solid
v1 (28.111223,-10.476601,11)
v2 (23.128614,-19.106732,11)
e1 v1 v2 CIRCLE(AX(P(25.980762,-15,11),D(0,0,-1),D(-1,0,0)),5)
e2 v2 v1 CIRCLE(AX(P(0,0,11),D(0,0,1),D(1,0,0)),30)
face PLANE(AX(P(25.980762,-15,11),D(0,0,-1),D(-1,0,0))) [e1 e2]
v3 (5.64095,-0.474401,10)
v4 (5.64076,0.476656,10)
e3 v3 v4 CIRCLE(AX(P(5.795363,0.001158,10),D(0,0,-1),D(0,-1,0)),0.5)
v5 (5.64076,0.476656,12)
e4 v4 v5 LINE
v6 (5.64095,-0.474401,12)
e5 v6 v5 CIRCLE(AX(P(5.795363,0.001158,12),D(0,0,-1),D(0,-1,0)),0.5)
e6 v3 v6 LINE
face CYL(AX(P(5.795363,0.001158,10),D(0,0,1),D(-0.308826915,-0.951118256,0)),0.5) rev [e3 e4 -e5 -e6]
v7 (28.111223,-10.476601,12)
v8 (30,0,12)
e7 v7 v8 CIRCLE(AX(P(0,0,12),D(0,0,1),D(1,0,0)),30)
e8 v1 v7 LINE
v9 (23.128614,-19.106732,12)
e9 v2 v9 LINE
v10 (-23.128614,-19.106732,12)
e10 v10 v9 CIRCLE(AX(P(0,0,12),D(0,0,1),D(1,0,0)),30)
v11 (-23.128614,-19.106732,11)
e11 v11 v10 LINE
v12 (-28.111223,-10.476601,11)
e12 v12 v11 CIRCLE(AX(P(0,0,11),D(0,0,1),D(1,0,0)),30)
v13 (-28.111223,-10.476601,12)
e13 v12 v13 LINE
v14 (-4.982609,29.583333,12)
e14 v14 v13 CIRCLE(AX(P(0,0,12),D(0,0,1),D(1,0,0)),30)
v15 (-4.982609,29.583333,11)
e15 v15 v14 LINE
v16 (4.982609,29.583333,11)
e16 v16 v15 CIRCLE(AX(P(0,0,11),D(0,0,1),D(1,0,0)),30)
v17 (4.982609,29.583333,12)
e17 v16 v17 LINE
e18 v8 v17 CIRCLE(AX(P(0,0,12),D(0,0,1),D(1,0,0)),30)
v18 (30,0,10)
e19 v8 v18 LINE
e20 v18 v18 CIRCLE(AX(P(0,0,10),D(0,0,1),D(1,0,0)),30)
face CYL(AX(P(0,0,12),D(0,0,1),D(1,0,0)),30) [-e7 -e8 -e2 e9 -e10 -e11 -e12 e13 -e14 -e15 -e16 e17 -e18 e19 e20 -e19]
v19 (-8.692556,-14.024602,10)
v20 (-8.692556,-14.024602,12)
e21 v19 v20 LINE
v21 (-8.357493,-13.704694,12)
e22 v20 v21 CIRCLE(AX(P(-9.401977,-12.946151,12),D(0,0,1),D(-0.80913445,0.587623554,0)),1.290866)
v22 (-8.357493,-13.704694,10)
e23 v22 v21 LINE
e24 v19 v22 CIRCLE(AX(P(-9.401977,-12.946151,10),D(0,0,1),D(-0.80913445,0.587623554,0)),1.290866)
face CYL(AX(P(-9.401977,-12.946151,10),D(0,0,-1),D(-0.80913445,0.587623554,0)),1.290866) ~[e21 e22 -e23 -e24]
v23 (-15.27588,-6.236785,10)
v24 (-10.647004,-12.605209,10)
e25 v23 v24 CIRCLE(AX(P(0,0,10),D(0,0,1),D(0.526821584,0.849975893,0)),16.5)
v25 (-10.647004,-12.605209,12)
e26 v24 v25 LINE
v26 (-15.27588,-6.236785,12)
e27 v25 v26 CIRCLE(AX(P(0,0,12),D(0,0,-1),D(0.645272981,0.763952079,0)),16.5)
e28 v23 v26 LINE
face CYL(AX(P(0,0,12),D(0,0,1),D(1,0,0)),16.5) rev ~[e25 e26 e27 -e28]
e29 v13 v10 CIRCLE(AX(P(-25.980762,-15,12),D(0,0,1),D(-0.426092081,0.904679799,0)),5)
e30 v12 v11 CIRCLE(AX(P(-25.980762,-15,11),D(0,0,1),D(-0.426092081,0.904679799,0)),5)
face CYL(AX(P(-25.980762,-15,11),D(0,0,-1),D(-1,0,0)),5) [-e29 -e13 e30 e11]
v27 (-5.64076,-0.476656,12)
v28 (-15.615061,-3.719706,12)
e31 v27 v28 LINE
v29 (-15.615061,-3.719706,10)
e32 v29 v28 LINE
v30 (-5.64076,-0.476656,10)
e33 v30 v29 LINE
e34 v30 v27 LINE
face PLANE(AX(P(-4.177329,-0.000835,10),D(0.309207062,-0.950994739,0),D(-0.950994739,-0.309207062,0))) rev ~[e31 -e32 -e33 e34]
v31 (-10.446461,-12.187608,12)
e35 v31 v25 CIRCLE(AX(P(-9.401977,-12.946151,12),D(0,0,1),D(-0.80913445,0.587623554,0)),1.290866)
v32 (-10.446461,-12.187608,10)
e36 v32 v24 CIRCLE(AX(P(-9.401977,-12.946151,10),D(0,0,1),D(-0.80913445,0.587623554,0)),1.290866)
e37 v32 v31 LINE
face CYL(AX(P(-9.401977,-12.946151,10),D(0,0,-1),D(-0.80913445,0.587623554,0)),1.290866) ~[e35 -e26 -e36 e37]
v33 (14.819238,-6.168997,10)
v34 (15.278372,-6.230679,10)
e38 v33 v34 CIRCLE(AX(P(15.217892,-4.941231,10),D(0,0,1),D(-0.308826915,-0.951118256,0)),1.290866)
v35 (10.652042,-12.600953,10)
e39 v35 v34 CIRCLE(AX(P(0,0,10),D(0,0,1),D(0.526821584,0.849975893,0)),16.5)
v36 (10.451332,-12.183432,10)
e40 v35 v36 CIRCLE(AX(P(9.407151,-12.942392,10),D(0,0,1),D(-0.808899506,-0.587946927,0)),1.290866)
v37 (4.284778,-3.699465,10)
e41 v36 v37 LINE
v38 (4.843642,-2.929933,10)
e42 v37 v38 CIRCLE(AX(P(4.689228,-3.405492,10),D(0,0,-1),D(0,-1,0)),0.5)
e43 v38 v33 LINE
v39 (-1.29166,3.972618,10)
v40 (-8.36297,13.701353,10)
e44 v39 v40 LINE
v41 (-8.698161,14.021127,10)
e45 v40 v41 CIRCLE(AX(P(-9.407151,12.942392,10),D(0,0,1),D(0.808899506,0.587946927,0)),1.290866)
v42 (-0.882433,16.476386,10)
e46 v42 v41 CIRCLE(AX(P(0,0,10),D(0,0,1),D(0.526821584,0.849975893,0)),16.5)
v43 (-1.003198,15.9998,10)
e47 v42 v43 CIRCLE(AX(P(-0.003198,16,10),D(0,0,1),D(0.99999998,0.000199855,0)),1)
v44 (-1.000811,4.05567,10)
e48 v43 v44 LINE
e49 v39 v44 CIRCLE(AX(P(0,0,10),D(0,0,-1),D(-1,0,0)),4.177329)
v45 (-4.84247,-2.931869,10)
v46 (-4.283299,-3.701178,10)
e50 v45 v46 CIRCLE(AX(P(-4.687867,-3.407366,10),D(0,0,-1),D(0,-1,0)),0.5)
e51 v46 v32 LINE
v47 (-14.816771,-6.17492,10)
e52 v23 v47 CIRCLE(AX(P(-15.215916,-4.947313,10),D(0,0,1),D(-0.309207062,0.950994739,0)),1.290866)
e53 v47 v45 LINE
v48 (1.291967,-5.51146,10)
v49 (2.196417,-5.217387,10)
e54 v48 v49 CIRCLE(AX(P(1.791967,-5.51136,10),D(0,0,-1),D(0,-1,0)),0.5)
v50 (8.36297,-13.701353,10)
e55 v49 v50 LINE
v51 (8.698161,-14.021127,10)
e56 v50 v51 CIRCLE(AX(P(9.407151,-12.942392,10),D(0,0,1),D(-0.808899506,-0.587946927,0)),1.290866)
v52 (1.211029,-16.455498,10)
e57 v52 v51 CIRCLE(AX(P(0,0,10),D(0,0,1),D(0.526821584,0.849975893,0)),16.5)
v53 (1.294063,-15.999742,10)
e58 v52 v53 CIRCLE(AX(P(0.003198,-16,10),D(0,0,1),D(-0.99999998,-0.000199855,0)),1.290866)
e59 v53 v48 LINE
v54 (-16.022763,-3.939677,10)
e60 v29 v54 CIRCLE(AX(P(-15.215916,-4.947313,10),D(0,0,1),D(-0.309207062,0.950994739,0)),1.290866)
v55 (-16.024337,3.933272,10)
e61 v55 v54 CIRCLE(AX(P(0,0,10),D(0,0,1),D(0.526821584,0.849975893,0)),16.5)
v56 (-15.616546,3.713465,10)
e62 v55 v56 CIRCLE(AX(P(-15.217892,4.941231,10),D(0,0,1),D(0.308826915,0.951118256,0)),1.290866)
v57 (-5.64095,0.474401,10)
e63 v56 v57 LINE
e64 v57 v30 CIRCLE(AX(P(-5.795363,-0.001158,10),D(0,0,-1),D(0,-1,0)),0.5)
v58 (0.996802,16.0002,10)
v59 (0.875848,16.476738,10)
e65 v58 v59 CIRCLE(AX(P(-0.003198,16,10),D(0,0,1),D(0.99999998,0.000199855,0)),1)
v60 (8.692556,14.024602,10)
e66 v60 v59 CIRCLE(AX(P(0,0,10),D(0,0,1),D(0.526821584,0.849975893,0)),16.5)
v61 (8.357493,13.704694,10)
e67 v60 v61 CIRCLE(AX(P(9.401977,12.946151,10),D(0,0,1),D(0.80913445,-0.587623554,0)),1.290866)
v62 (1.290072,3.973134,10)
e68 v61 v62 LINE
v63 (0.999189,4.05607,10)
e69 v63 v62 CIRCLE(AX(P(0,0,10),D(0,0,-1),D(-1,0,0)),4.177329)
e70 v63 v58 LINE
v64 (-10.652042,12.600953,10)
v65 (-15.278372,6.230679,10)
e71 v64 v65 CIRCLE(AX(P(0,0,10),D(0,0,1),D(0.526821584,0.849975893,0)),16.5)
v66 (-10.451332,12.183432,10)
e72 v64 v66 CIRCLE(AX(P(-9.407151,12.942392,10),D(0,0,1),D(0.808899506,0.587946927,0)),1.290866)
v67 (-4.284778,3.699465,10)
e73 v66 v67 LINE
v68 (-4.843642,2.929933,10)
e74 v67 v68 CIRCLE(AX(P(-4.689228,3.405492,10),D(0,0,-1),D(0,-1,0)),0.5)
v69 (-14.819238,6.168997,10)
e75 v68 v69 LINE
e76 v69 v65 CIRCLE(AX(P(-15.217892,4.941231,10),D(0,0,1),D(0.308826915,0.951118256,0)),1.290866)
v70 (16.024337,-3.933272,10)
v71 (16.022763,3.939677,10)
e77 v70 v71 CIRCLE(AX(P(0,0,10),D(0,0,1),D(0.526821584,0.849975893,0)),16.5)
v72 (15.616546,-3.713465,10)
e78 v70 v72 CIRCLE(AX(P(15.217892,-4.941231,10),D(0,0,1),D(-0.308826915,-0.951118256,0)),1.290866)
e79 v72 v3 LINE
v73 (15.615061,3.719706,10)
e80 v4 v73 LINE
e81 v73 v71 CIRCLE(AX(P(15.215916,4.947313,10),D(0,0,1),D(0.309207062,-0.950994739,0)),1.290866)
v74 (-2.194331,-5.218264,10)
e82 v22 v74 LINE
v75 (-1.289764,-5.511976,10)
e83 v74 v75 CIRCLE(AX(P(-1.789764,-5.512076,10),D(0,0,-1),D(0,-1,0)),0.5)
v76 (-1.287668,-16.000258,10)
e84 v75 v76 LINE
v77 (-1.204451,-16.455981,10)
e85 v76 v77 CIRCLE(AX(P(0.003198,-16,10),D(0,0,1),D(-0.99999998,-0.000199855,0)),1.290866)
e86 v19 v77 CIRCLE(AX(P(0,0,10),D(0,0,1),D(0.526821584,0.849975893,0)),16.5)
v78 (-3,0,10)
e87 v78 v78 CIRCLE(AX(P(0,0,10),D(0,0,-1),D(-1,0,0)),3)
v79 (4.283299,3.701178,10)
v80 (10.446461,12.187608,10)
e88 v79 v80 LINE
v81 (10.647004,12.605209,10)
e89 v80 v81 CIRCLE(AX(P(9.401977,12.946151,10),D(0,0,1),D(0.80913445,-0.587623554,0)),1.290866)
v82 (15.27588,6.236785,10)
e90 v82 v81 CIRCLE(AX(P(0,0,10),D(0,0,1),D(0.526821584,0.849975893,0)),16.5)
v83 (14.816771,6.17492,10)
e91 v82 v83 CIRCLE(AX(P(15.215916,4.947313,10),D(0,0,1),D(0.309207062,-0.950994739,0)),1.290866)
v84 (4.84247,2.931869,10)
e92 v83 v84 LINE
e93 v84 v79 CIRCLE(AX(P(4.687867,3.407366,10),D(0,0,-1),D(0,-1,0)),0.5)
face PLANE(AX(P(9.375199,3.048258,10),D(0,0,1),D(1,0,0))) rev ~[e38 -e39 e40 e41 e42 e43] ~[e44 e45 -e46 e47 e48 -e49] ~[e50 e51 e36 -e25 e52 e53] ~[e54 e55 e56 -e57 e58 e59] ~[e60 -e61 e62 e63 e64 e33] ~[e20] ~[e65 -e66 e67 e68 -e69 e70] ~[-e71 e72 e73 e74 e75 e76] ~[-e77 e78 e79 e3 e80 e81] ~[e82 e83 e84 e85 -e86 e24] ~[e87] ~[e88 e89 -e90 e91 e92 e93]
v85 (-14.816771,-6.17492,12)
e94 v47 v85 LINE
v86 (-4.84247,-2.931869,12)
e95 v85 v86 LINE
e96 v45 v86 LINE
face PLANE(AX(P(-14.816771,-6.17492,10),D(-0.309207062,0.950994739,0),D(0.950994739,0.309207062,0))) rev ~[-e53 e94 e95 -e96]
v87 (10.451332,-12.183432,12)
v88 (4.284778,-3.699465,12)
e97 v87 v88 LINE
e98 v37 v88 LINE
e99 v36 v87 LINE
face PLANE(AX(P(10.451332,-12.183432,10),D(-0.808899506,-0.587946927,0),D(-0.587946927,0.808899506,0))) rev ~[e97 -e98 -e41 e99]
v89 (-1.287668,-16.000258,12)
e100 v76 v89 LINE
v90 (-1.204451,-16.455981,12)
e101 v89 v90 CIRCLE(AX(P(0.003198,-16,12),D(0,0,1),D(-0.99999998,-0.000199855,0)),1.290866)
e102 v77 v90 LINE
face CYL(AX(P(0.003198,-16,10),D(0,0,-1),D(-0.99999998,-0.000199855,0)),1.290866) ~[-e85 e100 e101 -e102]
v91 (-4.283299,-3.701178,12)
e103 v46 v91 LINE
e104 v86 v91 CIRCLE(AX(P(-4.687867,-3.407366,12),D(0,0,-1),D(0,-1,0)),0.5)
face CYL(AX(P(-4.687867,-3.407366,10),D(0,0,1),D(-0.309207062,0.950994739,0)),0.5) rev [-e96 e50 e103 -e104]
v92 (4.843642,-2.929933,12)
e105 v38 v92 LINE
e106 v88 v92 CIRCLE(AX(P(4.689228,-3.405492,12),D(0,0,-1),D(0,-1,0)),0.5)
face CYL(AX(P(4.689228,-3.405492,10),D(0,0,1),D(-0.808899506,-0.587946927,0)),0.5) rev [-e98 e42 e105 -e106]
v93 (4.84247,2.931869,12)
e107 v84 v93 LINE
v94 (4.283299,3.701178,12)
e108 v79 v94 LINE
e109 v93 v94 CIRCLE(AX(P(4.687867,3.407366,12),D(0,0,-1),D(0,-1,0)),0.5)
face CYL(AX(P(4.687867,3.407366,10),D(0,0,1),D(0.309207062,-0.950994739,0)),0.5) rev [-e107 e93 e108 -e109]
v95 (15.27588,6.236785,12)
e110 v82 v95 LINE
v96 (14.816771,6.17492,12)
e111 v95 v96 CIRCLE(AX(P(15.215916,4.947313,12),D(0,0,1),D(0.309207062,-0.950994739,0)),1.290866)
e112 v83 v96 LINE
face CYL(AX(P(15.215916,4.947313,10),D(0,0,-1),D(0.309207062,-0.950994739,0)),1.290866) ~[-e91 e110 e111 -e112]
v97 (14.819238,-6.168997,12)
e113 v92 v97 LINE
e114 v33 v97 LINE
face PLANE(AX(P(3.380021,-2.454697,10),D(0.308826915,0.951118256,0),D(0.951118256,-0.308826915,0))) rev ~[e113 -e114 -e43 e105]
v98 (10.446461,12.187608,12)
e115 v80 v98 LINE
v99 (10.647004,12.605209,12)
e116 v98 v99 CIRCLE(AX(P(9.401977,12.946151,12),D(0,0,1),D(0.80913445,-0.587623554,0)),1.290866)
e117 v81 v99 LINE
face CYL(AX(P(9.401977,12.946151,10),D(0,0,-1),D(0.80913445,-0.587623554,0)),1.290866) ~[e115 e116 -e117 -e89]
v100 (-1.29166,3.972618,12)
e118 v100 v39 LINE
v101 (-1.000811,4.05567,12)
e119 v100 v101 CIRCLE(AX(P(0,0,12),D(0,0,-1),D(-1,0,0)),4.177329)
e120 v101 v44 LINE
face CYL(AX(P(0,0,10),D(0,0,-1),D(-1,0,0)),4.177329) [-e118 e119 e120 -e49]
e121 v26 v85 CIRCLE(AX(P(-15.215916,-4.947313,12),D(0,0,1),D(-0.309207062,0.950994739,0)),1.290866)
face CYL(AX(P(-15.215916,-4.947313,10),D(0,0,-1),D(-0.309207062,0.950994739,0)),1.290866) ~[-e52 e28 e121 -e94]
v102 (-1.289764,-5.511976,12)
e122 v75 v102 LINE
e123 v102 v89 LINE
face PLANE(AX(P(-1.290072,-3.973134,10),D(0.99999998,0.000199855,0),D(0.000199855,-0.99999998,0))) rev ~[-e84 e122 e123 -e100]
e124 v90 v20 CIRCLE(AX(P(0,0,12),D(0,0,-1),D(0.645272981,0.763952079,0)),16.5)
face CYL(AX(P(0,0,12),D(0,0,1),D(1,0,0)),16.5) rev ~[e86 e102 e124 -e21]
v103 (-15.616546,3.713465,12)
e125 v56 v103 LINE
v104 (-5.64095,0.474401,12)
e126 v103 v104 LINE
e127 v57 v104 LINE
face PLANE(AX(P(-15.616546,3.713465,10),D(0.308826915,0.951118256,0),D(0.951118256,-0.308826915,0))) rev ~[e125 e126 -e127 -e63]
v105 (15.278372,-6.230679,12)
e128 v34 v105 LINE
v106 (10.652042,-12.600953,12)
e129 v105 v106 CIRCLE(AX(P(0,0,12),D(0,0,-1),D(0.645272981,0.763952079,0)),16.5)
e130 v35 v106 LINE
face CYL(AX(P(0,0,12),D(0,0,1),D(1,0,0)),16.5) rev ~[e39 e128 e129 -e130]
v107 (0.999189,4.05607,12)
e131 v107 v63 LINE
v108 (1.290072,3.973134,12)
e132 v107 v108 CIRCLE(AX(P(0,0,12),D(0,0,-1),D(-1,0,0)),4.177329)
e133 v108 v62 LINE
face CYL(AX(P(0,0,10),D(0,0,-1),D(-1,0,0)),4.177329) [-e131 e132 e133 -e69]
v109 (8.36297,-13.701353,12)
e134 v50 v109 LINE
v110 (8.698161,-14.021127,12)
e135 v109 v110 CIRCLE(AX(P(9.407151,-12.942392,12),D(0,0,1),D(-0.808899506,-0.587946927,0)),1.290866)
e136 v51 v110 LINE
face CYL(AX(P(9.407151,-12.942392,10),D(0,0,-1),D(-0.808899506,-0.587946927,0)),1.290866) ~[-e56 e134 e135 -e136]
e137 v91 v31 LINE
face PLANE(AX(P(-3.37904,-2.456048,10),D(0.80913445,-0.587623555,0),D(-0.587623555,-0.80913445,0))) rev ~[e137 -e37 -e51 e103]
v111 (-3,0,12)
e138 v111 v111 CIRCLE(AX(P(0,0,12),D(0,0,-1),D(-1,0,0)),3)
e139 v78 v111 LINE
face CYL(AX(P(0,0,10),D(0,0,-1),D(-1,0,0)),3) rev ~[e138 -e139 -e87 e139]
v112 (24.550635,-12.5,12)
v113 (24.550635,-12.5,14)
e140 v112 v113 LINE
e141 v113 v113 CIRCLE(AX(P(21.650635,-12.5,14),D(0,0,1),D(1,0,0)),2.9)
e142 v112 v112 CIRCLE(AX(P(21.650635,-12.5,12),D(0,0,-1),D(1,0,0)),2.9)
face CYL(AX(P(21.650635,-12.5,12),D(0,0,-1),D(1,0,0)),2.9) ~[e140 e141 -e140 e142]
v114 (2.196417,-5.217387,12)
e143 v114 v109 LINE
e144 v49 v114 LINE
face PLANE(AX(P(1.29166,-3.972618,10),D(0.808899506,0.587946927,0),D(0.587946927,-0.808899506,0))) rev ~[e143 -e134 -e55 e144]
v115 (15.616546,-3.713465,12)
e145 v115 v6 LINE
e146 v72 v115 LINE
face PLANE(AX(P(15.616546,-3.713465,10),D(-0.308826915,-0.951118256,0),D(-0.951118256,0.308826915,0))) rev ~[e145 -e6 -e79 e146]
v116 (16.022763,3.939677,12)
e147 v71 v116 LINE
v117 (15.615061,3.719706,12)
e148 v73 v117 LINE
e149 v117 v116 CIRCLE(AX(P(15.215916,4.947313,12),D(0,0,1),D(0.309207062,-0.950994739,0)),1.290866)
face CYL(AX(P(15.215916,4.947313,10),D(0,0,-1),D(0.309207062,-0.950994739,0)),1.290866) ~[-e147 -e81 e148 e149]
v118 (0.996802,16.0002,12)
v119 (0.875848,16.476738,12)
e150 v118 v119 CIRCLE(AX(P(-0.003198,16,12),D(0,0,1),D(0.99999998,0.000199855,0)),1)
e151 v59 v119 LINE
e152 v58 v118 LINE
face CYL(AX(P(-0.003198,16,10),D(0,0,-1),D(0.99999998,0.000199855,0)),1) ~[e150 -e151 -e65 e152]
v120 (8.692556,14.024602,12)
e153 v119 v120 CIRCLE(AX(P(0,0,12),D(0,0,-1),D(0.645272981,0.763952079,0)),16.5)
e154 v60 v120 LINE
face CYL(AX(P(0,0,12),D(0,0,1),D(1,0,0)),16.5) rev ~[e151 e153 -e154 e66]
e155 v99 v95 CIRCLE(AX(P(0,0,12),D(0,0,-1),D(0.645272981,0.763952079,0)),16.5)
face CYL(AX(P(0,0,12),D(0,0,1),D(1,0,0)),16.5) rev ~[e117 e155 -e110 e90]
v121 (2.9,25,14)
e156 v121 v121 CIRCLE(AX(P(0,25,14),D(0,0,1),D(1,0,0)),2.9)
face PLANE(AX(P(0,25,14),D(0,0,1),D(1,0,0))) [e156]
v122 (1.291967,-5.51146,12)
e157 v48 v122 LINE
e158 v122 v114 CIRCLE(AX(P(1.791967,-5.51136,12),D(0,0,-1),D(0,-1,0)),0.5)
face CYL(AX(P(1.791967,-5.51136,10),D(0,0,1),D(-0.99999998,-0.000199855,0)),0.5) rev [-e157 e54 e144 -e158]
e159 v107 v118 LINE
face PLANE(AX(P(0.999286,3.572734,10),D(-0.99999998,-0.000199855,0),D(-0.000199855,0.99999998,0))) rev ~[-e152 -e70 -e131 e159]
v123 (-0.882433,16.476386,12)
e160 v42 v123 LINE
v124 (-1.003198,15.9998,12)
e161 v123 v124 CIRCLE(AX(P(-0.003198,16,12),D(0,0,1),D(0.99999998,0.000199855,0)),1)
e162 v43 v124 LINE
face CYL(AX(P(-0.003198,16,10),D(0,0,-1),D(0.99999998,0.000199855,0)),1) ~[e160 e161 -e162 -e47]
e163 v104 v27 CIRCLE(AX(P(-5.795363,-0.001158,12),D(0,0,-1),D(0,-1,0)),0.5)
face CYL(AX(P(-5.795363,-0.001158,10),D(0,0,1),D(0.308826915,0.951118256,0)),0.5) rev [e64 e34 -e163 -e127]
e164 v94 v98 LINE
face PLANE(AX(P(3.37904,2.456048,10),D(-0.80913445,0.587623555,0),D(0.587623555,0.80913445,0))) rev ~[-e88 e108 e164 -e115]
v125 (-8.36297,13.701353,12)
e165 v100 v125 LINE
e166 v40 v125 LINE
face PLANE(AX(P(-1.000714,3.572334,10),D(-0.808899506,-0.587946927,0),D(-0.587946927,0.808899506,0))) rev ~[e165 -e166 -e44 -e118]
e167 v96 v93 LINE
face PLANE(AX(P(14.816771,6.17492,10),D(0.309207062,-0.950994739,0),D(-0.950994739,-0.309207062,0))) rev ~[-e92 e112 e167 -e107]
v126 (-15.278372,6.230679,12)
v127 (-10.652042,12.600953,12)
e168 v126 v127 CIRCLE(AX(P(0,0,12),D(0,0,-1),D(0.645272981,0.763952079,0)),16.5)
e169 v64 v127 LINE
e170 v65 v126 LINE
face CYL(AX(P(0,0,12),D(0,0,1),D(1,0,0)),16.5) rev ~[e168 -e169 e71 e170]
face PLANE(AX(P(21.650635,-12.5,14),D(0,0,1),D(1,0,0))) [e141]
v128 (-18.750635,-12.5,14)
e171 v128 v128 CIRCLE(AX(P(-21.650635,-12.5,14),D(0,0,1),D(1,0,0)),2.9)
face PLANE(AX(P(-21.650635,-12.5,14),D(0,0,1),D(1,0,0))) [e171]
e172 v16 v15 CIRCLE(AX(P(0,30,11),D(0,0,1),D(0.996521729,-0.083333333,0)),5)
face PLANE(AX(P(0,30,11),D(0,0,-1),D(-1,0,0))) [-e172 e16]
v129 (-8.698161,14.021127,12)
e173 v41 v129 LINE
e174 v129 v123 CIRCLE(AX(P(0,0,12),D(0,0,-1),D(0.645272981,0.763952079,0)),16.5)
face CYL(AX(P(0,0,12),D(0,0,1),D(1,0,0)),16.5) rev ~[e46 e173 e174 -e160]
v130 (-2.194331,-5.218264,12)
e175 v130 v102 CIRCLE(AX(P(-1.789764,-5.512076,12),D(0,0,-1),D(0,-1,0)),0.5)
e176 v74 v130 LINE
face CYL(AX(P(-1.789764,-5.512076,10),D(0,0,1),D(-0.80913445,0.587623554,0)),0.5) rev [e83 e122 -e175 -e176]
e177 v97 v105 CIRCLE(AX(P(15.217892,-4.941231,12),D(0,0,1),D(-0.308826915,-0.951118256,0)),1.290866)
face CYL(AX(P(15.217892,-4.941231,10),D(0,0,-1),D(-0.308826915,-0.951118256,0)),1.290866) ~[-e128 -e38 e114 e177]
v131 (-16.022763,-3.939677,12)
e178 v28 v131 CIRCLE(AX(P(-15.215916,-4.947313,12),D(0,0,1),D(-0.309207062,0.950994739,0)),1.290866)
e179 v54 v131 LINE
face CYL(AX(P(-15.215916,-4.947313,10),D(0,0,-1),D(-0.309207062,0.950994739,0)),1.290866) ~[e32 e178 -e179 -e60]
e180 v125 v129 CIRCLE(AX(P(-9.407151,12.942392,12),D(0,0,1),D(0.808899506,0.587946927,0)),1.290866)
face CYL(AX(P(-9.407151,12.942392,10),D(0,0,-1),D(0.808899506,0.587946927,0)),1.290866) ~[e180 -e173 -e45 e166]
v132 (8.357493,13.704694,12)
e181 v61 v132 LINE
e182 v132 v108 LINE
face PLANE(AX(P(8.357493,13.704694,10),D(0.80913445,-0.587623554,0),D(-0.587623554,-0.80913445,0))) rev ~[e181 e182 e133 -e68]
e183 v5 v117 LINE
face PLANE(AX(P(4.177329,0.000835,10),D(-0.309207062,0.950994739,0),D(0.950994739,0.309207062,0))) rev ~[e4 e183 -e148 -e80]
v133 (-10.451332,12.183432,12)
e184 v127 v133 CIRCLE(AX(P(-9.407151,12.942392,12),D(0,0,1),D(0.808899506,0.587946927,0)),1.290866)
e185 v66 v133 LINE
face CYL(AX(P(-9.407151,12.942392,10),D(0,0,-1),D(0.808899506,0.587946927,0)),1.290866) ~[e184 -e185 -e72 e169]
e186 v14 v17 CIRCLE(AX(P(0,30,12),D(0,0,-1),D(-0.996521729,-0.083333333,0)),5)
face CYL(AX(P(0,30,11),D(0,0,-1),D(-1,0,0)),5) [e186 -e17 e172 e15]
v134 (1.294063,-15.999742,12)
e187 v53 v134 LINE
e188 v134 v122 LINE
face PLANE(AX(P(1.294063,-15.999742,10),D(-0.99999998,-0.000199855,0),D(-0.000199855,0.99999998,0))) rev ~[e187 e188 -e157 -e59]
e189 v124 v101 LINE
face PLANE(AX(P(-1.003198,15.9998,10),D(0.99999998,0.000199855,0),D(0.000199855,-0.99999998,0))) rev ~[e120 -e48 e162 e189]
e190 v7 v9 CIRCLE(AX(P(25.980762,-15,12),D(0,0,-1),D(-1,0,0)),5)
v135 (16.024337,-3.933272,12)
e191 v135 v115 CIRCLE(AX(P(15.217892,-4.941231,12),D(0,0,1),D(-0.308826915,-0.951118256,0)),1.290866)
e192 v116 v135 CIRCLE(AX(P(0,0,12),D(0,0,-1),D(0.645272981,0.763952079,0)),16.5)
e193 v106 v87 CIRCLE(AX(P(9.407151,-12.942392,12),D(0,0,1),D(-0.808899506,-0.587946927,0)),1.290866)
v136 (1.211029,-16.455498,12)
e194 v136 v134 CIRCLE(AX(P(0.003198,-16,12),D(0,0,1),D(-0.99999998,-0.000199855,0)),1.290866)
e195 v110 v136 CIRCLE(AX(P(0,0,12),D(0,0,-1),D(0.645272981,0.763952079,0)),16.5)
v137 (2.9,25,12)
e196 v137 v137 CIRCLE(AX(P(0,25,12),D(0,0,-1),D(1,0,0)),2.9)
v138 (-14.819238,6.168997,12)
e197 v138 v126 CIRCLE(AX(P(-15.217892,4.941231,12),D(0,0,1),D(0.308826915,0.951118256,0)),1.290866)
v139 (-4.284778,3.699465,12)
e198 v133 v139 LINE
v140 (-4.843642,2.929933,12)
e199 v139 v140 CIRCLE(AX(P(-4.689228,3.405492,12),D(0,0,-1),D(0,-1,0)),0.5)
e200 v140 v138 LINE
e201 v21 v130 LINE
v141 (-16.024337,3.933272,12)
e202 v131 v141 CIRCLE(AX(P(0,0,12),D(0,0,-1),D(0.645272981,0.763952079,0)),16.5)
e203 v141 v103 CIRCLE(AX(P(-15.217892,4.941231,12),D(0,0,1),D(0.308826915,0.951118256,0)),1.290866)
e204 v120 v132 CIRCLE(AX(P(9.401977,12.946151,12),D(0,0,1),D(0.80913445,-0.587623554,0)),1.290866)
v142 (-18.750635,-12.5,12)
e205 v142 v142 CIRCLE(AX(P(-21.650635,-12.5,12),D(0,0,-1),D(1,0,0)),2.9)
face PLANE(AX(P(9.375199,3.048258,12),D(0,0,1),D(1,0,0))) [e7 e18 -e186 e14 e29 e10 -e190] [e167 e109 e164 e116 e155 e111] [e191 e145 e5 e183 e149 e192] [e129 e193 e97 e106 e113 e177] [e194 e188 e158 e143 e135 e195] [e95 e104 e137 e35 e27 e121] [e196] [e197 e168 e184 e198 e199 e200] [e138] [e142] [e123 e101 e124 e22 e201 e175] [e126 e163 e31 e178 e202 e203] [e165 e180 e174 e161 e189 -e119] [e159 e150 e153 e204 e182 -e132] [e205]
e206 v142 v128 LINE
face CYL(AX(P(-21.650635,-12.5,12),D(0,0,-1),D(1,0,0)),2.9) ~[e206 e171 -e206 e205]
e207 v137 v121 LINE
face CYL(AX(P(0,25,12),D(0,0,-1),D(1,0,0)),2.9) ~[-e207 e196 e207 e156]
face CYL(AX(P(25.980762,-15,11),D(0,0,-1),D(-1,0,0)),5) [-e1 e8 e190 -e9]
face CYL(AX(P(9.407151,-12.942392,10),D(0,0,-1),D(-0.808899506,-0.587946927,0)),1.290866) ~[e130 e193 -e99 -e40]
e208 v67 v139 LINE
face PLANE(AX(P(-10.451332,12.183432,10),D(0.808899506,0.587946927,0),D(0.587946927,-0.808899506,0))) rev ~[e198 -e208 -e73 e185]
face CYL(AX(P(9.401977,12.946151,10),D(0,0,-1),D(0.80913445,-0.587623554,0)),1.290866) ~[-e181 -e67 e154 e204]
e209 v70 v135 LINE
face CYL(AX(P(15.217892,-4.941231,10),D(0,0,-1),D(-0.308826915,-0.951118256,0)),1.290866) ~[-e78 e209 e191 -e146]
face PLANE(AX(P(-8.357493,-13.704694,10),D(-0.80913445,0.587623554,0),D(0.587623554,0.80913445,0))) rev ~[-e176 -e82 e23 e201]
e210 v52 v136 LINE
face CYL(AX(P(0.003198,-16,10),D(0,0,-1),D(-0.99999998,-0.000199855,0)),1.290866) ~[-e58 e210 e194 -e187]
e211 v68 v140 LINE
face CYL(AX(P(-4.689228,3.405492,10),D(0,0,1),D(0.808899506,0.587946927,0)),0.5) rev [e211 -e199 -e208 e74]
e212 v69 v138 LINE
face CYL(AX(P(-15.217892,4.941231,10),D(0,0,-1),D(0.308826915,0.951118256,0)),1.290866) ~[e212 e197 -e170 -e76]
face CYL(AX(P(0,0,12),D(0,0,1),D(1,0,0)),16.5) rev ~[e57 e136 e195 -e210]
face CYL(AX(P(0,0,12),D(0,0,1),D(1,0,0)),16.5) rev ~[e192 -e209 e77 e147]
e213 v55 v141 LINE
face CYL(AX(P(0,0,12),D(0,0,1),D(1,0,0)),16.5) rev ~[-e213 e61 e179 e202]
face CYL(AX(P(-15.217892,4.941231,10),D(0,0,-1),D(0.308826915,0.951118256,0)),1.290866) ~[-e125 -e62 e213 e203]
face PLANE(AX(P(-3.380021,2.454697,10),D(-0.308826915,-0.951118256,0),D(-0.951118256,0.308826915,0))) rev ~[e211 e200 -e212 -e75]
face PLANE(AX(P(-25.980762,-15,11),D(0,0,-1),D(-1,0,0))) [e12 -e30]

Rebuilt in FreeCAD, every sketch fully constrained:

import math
import FreeCAD as App
import Part
import Sketcher

V = App.Vector


def edges_at(feature, points):
    """Names of the edges that pass closest to the given points."""
    edges = feature.Shape.Edges
    near = lambda p: min(range(len(edges)), key=lambda i: edges[i].distToShape(Part.Vertex(*p))[0])
    return sorted({f"Edge{near(p) + 1}" for p in points})

doc = App.newDocument("Part")
body = doc.addObject("PartDesign::Body", "Body")

sketch1 = body.newObject("Sketcher::SketchObject", "Sketch")
sketch1.AttachmentSupport = (doc.getObject("XY_Plane"), [""])
sketch1.MapMode = "FlatFace"
sketch1.AttachmentOffset = App.Placement(V(0, 0, 10), App.Rotation())
sketch1.addGeometry([
    Part.LineSegment(V(8.357493, 13.704694, 0), V(0.999286, 3.572734, 0)),
    Part.LineSegment(V(0.999286, 3.572734, 0), V(0.999664, 1.682416, 0)),
    Part.LineSegment(V(0.999664, 1.682416, 0), V(3.37904, 2.456048, 0)),
    Part.LineSegment(V(3.37904, 2.456048, 0), V(10.446461, 12.187608, 0)),
    Part.ArcOfCircle(Part.Circle(V(9.401977, 12.946151, 0), V(0, 0, 1), 1.290866), math.radians(-35.988549), math.radians(144.011451)),
], False)
sketch1.addConstraint([
    Sketcher.Constraint("Coincident", 0, 2, 1, 1),
    Sketcher.Constraint("Coincident", 1, 2, 2, 1),
    Sketcher.Constraint("Coincident", 2, 2, 3, 1),
    Sketcher.Constraint("Tangent", 3, 2, 4, 1),
    Sketcher.Constraint("Tangent", 4, 2, 0, 1),
    Sketcher.Constraint("Parallel", 0, 3),
    Sketcher.Constraint("Radius", 4, 1.290866),
    Sketcher.Constraint("DistanceY", -1, 1, 4, 3, 12.946151),
    Sketcher.Constraint("DistanceX", -1, 1, 2, 2, 3.37904),
    Sketcher.Constraint("DistanceX", -1, 1, 3, 2, 10.446461),
    Sketcher.Constraint("DistanceY", -1, 1, 3, 2, 12.187608),
    Sketcher.Constraint("DistanceX", 0, 2, 4, 3, 8.402691),
    Sketcher.Constraint("DistanceY", 1, 2, 2, 2, 0.773632),
    Sketcher.Constraint("DistanceX", 1, 2, 4, 2, 7.357829),
])
pad1 = body.newObject("PartDesign::Pad", "Pad")
pad1.Profile = sketch1
pad1.Length = 2
body2 = doc.addObject("PartDesign::Body", "Body001")

sketch2 = body2.newObject("Sketcher::SketchObject", "Sketch001")
sketch2.AttachmentSupport = (doc.getObject("XY_Plane001"), [""])
sketch2.MapMode = "FlatFace"
sketch2.AttachmentOffset = App.Placement(V(0, 0, 10), App.Rotation())
sketch2.addGeometry([
    Part.LineSegment(V(0.999286, 3.572734, 0), V(0.996802, 16.0002, 0)),
    Part.ArcOfCircle(Part.Circle(V(-0.003198, 16, 0), V(0, 0, 1), 1), math.radians(0.011451), math.radians(180.011451)),
    Part.LineSegment(V(-1.003198, 15.9998, 0), V(-1.000714, 3.572334, 0)),
    Part.LineSegment(V(-1.000714, 3.572334, 0), V(-0.000439, 2.196152, 0)),
    Part.LineSegment(V(-0.000439, 2.196152, 0), V(0.999286, 3.572734, 0)),
], False)
sketch2.addConstraint([
    Sketcher.Constraint("Tangent", 0, 2, 1, 1),
    Sketcher.Constraint("Tangent", 1, 2, 2, 1),
    Sketcher.Constraint("Coincident", 2, 2, 3, 1),
    Sketcher.Constraint("Coincident", 3, 2, 4, 1),
    Sketcher.Constraint("Coincident", 4, 2, 0, 1),
    Sketcher.Constraint("Parallel", 0, 2),
    Sketcher.Constraint("Equal", 0, 2),
    Sketcher.Constraint("Equal", 3, 4),
    Sketcher.Constraint("Radius", 1, 1.0),
    Sketcher.Constraint("DistanceY", -1, 1, 1, 3, 16.0),
    Sketcher.Constraint("Distance", 3, 1.701302),
    Sketcher.Constraint("DistanceY", -1, 1, 0, 2, 16.0002),
    Sketcher.Constraint("DistanceX", 3, 2, -1, 1, 0.000439),
    Sketcher.Constraint("DistanceY", -1, 1, 3, 2, 2.196152),
])
pad2 = body2.newObject("PartDesign::Pad", "Pad001")
pad2.Profile = sketch2
pad2.Length = 2
body3 = doc.addObject("PartDesign::Body", "Body002")

sketch3 = body3.newObject("Sketcher::SketchObject", "Sketch002")
sketch3.AttachmentSupport = (doc.getObject("XY_Plane002"), [""])
sketch3.MapMode = "FlatFace"
sketch3.AttachmentOffset = App.Placement(V(0, 0, 10), App.Rotation())
sketch3.addGeometry([
    Part.LineSegment(V(-1.000336, 1.682016, 0), V(-1.000714, 3.572334, 0)),
    Part.LineSegment(V(-1.000714, 3.572334, 0), V(-8.36297, 13.701353, 0)),
    Part.ArcOfCircle(Part.Circle(V(-9.407151, 12.942392, 0), V(0, 0, 1), 1.290866), math.radians(36.011451), math.radians(216.011451)),
    Part.LineSegment(V(-10.451332, 12.183432, 0), V(-3.380021, 2.454697, 0)),
    Part.LineSegment(V(-3.380021, 2.454697, 0), V(-1.000336, 1.682016, 0)),
], False)
sketch3.addConstraint([
    Sketcher.Constraint("Coincident", 0, 2, 1, 1),
    Sketcher.Constraint("Tangent", 1, 2, 2, 1),
    Sketcher.Constraint("Tangent", 2, 2, 3, 1),
    Sketcher.Constraint("Coincident", 3, 2, 4, 1),
    Sketcher.Constraint("Coincident", 4, 2, 0, 1),
    Sketcher.Constraint("Parallel", 1, 3),
    Sketcher.Constraint("Radius", 2, 1.290866),
    Sketcher.Constraint("DistanceX", 2, 3, -1, 1, 9.407151),
    Sketcher.Constraint("DistanceX", 1, 2, -1, 1, 8.36297),
    Sketcher.Constraint("DistanceY", -1, 1, 2, 2, 12.183432),
    Sketcher.Constraint("DistanceX", 3, 2, -1, 1, 3.380021),
    Sketcher.Constraint("DistanceY", 0, 2, 2, 3, 9.370058),
    Sketcher.Constraint("DistanceY", 4, 2, 3, 2, 0.772681),
    Sketcher.Constraint("Distance", 4, 2.501986),
])
pad3 = body3.newObject("PartDesign::Pad", "Pad002")
pad3.Profile = sketch3
pad3.Length = 2
body4 = doc.addObject("PartDesign::Body", "Body003")

sketch4 = body4.newObject("Sketcher::SketchObject", "Sketch003")
sketch4.AttachmentSupport = (doc.getObject("XY_Plane003"), [""])
sketch4.MapMode = "FlatFace"
sketch4.AttachmentOffset = App.Placement(V(0, 0, 10), App.Rotation())
sketch4.addGeometry([
    Part.LineSegment(V(-2.0888, 0.678231, 0), V(-3.380021, 2.454697, 0)),
    Part.LineSegment(V(-3.380021, 2.454697, 0), V(-14.819238, 6.168997, 0)),
    Part.ArcOfCircle(Part.Circle(V(-15.217892, 4.941231, 0), V(0, 0, 1), 1.290866), math.radians(72.011451), math.radians(252.011451)),
    Part.LineSegment(V(-15.616546, 3.713465, 0), V(-4.177329, -0.000835, 0)),
    Part.LineSegment(V(-4.177329, -0.000835, 0), V(-2.0888, 0.678231, 0)),
], False)
sketch4.addConstraint([
    Sketcher.Constraint("Coincident", 0, 2, 1, 1),
    Sketcher.Constraint("Tangent", 1, 2, 2, 1),
    Sketcher.Constraint("Tangent", 2, 2, 3, 1),
    Sketcher.Constraint("Coincident", 3, 2, 4, 1),
    Sketcher.Constraint("Coincident", 4, 2, 0, 1),
    Sketcher.Constraint("Parallel", 1, 3),
    Sketcher.Constraint("Equal", 1, 3),
    Sketcher.Constraint("Equal", 0, 4),
    Sketcher.Constraint("Radius", 2, 1.290866),
    Sketcher.Constraint("DistanceY", 4, 2, 2, 3, 4.263),
    Sketcher.Constraint("DistanceX", 4, 2, -1, 1, 2.0888),
    Sketcher.Constraint("DistanceY", 0, 2, 1, 2, 3.7143),
    Sketcher.Constraint("DistanceY", -1, 1, 2, 3, 4.941231),
    Sketcher.Constraint("DistanceX", 0, 2, -1, 1, 3.380021),
])
pad4 = body4.newObject("PartDesign::Pad", "Pad003")
pad4.Profile = sketch4
pad4.Length = 2
body5 = doc.addObject("PartDesign::Body", "Body004")

sketch5 = body5.newObject("Sketcher::SketchObject", "Sketch004")
sketch5.AttachmentSupport = (doc.getObject("XY_Plane004"), [""])
sketch5.MapMode = "FlatFace"
sketch5.AttachmentOffset = App.Placement(V(0, 0, 10), App.Rotation())
sketch5.addGeometry([
    Part.LineSegment(V(-2.088529, -0.679066, 0), V(-4.177329, -0.000835, 0)),
    Part.LineSegment(V(-4.177329, -0.000835, 0), V(-15.615061, -3.719706, 0)),
    Part.ArcOfCircle(Part.Circle(V(-15.215916, -4.947313, 0), V(0, 0, 1), 1.290866), math.radians(108.011451), math.radians(288.011451)),
    Part.LineSegment(V(-14.816771, -6.17492, 0), V(-3.37904, -2.456048, 0)),
    Part.LineSegment(V(-3.37904, -2.456048, 0), V(-2.088529, -0.679066, 0)),
], False)
sketch5.addConstraint([
    Sketcher.Constraint("Coincident", 0, 2, 1, 1),
    Sketcher.Constraint("Tangent", 1, 2, 2, 1),
    Sketcher.Constraint("Tangent", 2, 2, 3, 1),
    Sketcher.Constraint("Coincident", 3, 2, 4, 1),
    Sketcher.Constraint("Coincident", 4, 2, 0, 1),
    Sketcher.Constraint("Parallel", 1, 3),
    Sketcher.Constraint("Equal", 1, 3),
    Sketcher.Constraint("Equal", 0, 4),
    Sketcher.Constraint("Radius", 2, 1.290866),
    Sketcher.Constraint("DistanceX", 0, 2, 4, 2, 2.0888),
    Sketcher.Constraint("DistanceX", 0, 2, -1, 1, 4.177329),
    Sketcher.Constraint("DistanceX", 1, 2, -1, 1, 15.615061),
    Sketcher.Constraint("DistanceX", 2, 2, -1, 1, 14.816771),
    Sketcher.Constraint("DistanceY", 2, 2, -1, 1, 6.17492),
])
pad5 = body5.newObject("PartDesign::Pad", "Pad004")
pad5.Profile = sketch5
pad5.Length = 2
body6 = doc.addObject("PartDesign::Body", "Body005")

sketch6 = body6.newObject("Sketcher::SketchObject", "Sketch005")
sketch6.AttachmentSupport = (doc.getObject("XY_Plane005"), [""])
sketch6.MapMode = "FlatFace"
sketch6.AttachmentOffset = App.Placement(V(0, 0, 10), App.Rotation())
sketch6.addGeometry([
    Part.LineSegment(V(-1.290511, -1.776982, 0), V(-3.37904, -2.456048, 0)),
    Part.LineSegment(V(-3.37904, -2.456048, 0), V(-10.446461, -12.187608, 0)),
    Part.ArcOfCircle(Part.Circle(V(-9.401977, -12.946151, 0), V(0, 0, 1), 1.290866), math.radians(144.011451), math.radians(324.011451)),
    Part.LineSegment(V(-8.357493, -13.704694, 0), V(-1.290072, -3.973134, 0)),
    Part.LineSegment(V(-1.290072, -3.973134, 0), V(-1.290511, -1.776982, 0)),
], False)
sketch6.addConstraint([
    Sketcher.Constraint("Coincident", 0, 2, 1, 1),
    Sketcher.Constraint("Tangent", 1, 2, 2, 1),
    Sketcher.Constraint("Tangent", 2, 2, 3, 1),
    Sketcher.Constraint("Coincident", 3, 2, 4, 1),
    Sketcher.Constraint("Coincident", 4, 2, 0, 1),
    Sketcher.Constraint("Parallel", 1, 3),
    Sketcher.Constraint("Equal", 1, 3),
    Sketcher.Constraint("Equal", 0, 4),
    Sketcher.Constraint("Radius", 2, 1.290866),
    Sketcher.Constraint("DistanceY", 2, 3, -1, 1, 12.946151),
    Sketcher.Constraint("DistanceX", 0, 2, -1, 1, 3.37904),
    Sketcher.Constraint("DistanceX", 1, 2, -1, 1, 10.446461),
    Sketcher.Constraint("DistanceY", 1, 2, -1, 1, 12.187608),
    Sketcher.Constraint("DistanceX", 4, 2, -1, 1, 1.290511),
])
pad6 = body6.newObject("PartDesign::Pad", "Pad005")
pad6.Profile = sketch6
pad6.Length = 2
body7 = doc.addObject("PartDesign::Body", "Body006")

sketch7 = body7.newObject("Sketcher::SketchObject", "Sketch006")
sketch7.AttachmentSupport = (doc.getObject("XY_Plane006"), [""])
sketch7.MapMode = "FlatFace"
sketch7.AttachmentOffset = App.Placement(V(0, 0, 10), App.Rotation())
sketch7.addGeometry([
    Part.LineSegment(V(1.294063, -15.999742, 0), V(1.29166, -3.972618, 0)),
    Part.LineSegment(V(1.29166, -3.972618, 0), V(0.000439, -2.196152, 0)),
    Part.LineSegment(V(0.000439, -2.196152, 0), V(-1.290072, -3.973134, 0)),
    Part.LineSegment(V(-1.290072, -3.973134, 0), V(-1.287668, -16.000258, 0)),
    Part.ArcOfCircle(Part.Circle(V(0.003198, -16, 0), V(0, 0, 1), 1.290866), math.radians(-179.988549), math.radians(0.011451)),
], False)
sketch7.addConstraint([
    Sketcher.Constraint("Coincident", 0, 2, 1, 1),
    Sketcher.Constraint("Coincident", 1, 2, 2, 1),
    Sketcher.Constraint("Coincident", 2, 2, 3, 1),
    Sketcher.Constraint("Tangent", 3, 2, 4, 1),
    Sketcher.Constraint("Tangent", 4, 2, 0, 1),
    Sketcher.Constraint("Parallel", 0, 3),
    Sketcher.Constraint("Equal", 1, 2),
    Sketcher.Constraint("Equal", 0, 3),
    Sketcher.Constraint("DistanceY", 4, 3, -1, 1, 16.0),
    Sketcher.Constraint("Radius", 4, 1.290866),
    Sketcher.Constraint("DistanceX", -1, 1, 0, 2, 1.29166),
    Sketcher.Constraint("DistanceY", 0, 2, -1, 1, 3.972618),
    Sketcher.Constraint("DistanceX", -1, 1, 1, 2, 0.000439),
    Sketcher.Constraint("DistanceY", 1, 2, -1, 1, 2.196152),
])
pad7 = body7.newObject("PartDesign::Pad", "Pad006")
pad7.Profile = sketch7
pad7.Length = 2
body8 = doc.addObject("PartDesign::Body", "Body007")

sketch8 = body8.newObject("Sketcher::SketchObject", "Sketch007")
sketch8.AttachmentSupport = (doc.getObject("XY_Plane007"), [""])
sketch8.MapMode = "FlatFace"
sketch8.AttachmentOffset = App.Placement(V(0, 0, 10), App.Rotation())
sketch8.addGeometry([
    Part.LineSegment(V(10.451332, -12.183432, 0), V(3.380021, -2.454697, 0)),
    Part.LineSegment(V(3.380021, -2.454697, 0), V(1.291221, -1.776466, 0)),
    Part.LineSegment(V(1.291221, -1.776466, 0), V(1.29166, -3.972618, 0)),
    Part.LineSegment(V(1.29166, -3.972618, 0), V(8.36297, -13.701353, 0)),
    Part.ArcOfCircle(Part.Circle(V(9.407151, -12.942392, 0), V(0, 0, 1), 1.290866), math.radians(-143.988549), math.radians(36.011451)),
], False)
sketch8.addConstraint([
    Sketcher.Constraint("Coincident", 0, 2, 1, 1),
    Sketcher.Constraint("Coincident", 1, 2, 2, 1),
    Sketcher.Constraint("Coincident", 2, 2, 3, 1),
    Sketcher.Constraint("Tangent", 3, 2, 4, 1),
    Sketcher.Constraint("Tangent", 4, 2, 0, 1),
    Sketcher.Constraint("Parallel", 0, 3),
    Sketcher.Constraint("Equal", 1, 2),
    Sketcher.Constraint("Equal", 0, 3),
    Sketcher.Constraint("Radius", 4, 1.290866),
    Sketcher.Constraint("DistanceX", 1, 2, 0, 2, 2.0888),
    Sketcher.Constraint("DistanceX", -1, 1, 4, 3, 9.407151),
    Sketcher.Constraint("DistanceX", -1, 1, 0, 2, 3.380021),
    Sketcher.Constraint("DistanceX", -1, 1, 2, 2, 1.29166),
    Sketcher.Constraint("DistanceY", 2, 2, -1, 1, 3.972618),
])
pad8 = body8.newObject("PartDesign::Pad", "Pad007")
pad8.Profile = sketch8
pad8.Length = 2
body9 = doc.addObject("PartDesign::Body", "Body008")

sketch9 = body9.newObject("Sketcher::SketchObject", "Sketch008")
sketch9.AttachmentSupport = (doc.getObject("XY_Plane008"), [""])
sketch9.MapMode = "FlatFace"
sketch9.AttachmentOffset = App.Placement(V(0, 0, 10), App.Rotation())
sketch9.addGeometry([
    Part.LineSegment(V(15.616546, -3.713465, 0), V(4.177329, 0.000835, 0)),
    Part.LineSegment(V(4.177329, 0.000835, 0), V(2.0888, -0.678231, 0)),
    Part.LineSegment(V(2.0888, -0.678231, 0), V(3.380021, -2.454697, 0)),
    Part.LineSegment(V(3.380021, -2.454697, 0), V(14.819238, -6.168997, 0)),
    Part.ArcOfCircle(Part.Circle(V(15.217892, -4.941231, 0), V(0, 0, 1), 1.290866), math.radians(-107.988549), math.radians(72.011451)),
], False)
sketch9.addConstraint([
    Sketcher.Constraint("Coincident", 0, 2, 1, 1),
    Sketcher.Constraint("Coincident", 1, 2, 2, 1),
    Sketcher.Constraint("Coincident", 2, 2, 3, 1),
    Sketcher.Constraint("Tangent", 3, 2, 4, 1),
    Sketcher.Constraint("Tangent", 4, 2, 0, 1),
    Sketcher.Constraint("Parallel", 0, 3),
    Sketcher.Constraint("Equal", 1, 2),
    Sketcher.Constraint("Equal", 0, 3),
    Sketcher.Constraint("Radius", 4, 1.290866),
    Sketcher.Constraint("DistanceY", 4, 3, 1, 2, 4.263),
    Sketcher.Constraint("DistanceX", -1, 1, 1, 2, 2.0888),
    Sketcher.Constraint("DistanceY", 3, 2, 2, 2, 3.7143),
    Sketcher.Constraint("DistanceY", 4, 3, -1, 1, 4.941231),
    Sketcher.Constraint("DistanceX", -1, 1, 0, 2, 4.177329),
])
pad9 = body9.newObject("PartDesign::Pad", "Pad008")
pad9.Profile = sketch9
pad9.Length = 2
body10 = doc.addObject("PartDesign::Body", "Body009")

sketch10 = body10.newObject("Sketcher::SketchObject", "Sketch009")
sketch10.AttachmentSupport = (doc.getObject("XY_Plane009"), [""])
sketch10.MapMode = "FlatFace"
sketch10.AttachmentOffset = App.Placement(V(0, 0, 10), App.Rotation())
sketch10.addGeometry([
    Part.LineSegment(V(14.816771, 6.17492, 0), V(3.37904, 2.456048, 0)),
    Part.LineSegment(V(3.37904, 2.456048, 0), V(2.088529, 0.679066, 0)),
    Part.LineSegment(V(2.088529, 0.679066, 0), V(4.177329, 0.000835, 0)),
    Part.LineSegment(V(4.177329, 0.000835, 0), V(15.615061, 3.719706, 0)),
    Part.ArcOfCircle(Part.Circle(V(15.215916, 4.947313, 0), V(0, 0, 1), 1.290866), math.radians(-71.988549), math.radians(108.011451)),
], False)
sketch10.addConstraint([
    Sketcher.Constraint("Coincident", 0, 2, 1, 1),
    Sketcher.Constraint("Coincident", 1, 2, 2, 1),
    Sketcher.Constraint("Coincident", 2, 2, 3, 1),
    Sketcher.Constraint("Tangent", 3, 2, 4, 1),
    Sketcher.Constraint("Tangent", 4, 2, 0, 1),
    Sketcher.Constraint("Parallel", 0, 3),
    Sketcher.Constraint("Equal", 1, 2),
    Sketcher.Constraint("Equal", 0, 3),
    Sketcher.Constraint("Radius", 4, 1.290866),
    Sketcher.Constraint("DistanceX", 1, 2, 2, 2, 2.0888),
    Sketcher.Constraint("DistanceX", -1, 1, 0, 2, 3.37904),
    Sketcher.Constraint("DistanceX", -1, 1, 1, 2, 2.088529),
    Sketcher.Constraint("DistanceX", -1, 1, 3, 2, 15.615061),
    Sketcher.Constraint("DistanceY", -1, 1, 4, 2, 6.17492),
])
pad10 = body10.newObject("PartDesign::Pad", "Pad009")
pad10.Profile = sketch10
pad10.Length = 2
body11 = doc.addObject("PartDesign::Body", "Body010")

sketch11 = body11.newObject("Sketcher::SketchObject", "Sketch010")
sketch11.AttachmentSupport = (doc.getObject("XY_Plane010"), [""])
sketch11.MapMode = "FlatFace"
sketch11.AttachmentOffset = App.Placement(V(0, 0, 12), App.Rotation())
sketch11.addGeometry([
    Part.Circle(V(0, 0, 0), V(0, 0, 1), 30),
    Part.Circle(V(0, 0, 0), V(0, 0, 1), 16.5),
], False)
sketch11.addConstraint([
    Sketcher.Constraint("Coincident", 0, 3, -1, 1),
    Sketcher.Constraint("Coincident", 1, 3, -1, 1),
    Sketcher.Constraint("Diameter", 0, 60.0),
    Sketcher.Constraint("Diameter", 1, 33.0),
])
pad11 = body11.newObject("PartDesign::Pad", "Pad010")
pad11.Profile = sketch11
pad11.Length = 2
pad11.Reversed = True

sketch12 = body11.newObject("Sketcher::SketchObject", "Sketch011")
sketch12.AttachmentSupport = (doc.getObject("XY_Plane010"), [""])
sketch12.MapMode = "FlatFace"
sketch12.AttachmentOffset = App.Placement(V(0, 0, 12), App.Rotation())
sketch12.addGeometry([
    Part.Circle(V(0, 25, 0), V(0, 0, 1), 2.9),
    Part.Circle(V(21.650635, -12.5, 0), V(0, 0, 1), 2.9),
    Part.Circle(V(-21.650635, -12.5, 0), V(0, 0, 1), 2.9),
], False)
sketch12.addConstraint([
    Sketcher.Constraint("Equal", 0, 1),
    Sketcher.Constraint("Equal", 1, 2),
    Sketcher.Constraint("Symmetric", 1, 3, 2, 3, -2),
    Sketcher.Constraint("PointOnObject", 0, 3, -2),
    Sketcher.Constraint("Diameter", 0, 5.8),
    Sketcher.Constraint("DistanceY", -1, 1, 0, 3, 25.0),
    Sketcher.Constraint("DistanceY", 1, 3, -1, 1, 12.5),
    Sketcher.Constraint("DistanceX", 2, 3, 1, 3, 43.30127),
])
pad12 = body11.newObject("PartDesign::Pad", "Pad011")
pad12.Profile = sketch12
pad12.Length = 2

sketch13 = body11.newObject("Sketcher::SketchObject", "Sketch012")
sketch13.AttachmentSupport = (doc.getObject("XY_Plane010"), [""])
sketch13.MapMode = "FlatFace"
sketch13.AttachmentOffset = App.Placement(V(0, 0, 11), App.Rotation())
sketch13.addGeometry([
    Part.Circle(V(0, 30, 0), V(0, 0, 1), 5),
    Part.Circle(V(-25.980762, -15, 0), V(0, 0, 1), 5),
    Part.Circle(V(25.980762, -15, 0), V(0, 0, 1), 5),
], False)
sketch13.addConstraint([
    Sketcher.Constraint("Equal", 0, 1),
    Sketcher.Constraint("Equal", 1, 2),
    Sketcher.Constraint("Symmetric", 1, 3, 2, 3, -2),
    Sketcher.Constraint("PointOnObject", 0, 3, -2),
    Sketcher.Constraint("Diameter", 0, 10.0),
    Sketcher.Constraint("DistanceY", -1, 1, 0, 3, 30.0),
    Sketcher.Constraint("DistanceY", 1, 3, -1, 1, 15.0),
    Sketcher.Constraint("DistanceX", 1, 3, -1, 1, 25.980762),
])
pad13 = body11.newObject("PartDesign::Pad", "Pad012")
pad13.Profile = sketch13
pad13.Length = 1
doc.recompute()

boolean = body11.newObject("PartDesign::Boolean", "Boolean")
boolean.Type = "Fuse"
boolean.addObjects([body])
doc.recompute()

boolean2 = body11.newObject("PartDesign::Boolean", "Boolean001")
boolean2.Type = "Fuse"
boolean2.addObjects([body3])
doc.recompute()

boolean3 = body11.newObject("PartDesign::Boolean", "Boolean002")
boolean3.Type = "Fuse"
boolean3.addObjects([body5])
doc.recompute()

boolean4 = body11.newObject("PartDesign::Boolean", "Boolean003")
boolean4.Type = "Fuse"
boolean4.addObjects([body7])
doc.recompute()

boolean5 = body11.newObject("PartDesign::Boolean", "Boolean004")
boolean5.Type = "Fuse"
boolean5.addObjects([body9])
doc.recompute()

boolean6 = body11.newObject("PartDesign::Boolean", "Boolean005")
boolean6.Type = "Fuse"
boolean6.addObjects([body2])
doc.recompute()

boolean7 = body11.newObject("PartDesign::Boolean", "Boolean006")
boolean7.Type = "Fuse"
boolean7.addObjects([body4])
doc.recompute()

boolean8 = body11.newObject("PartDesign::Boolean", "Boolean007")
boolean8.Type = "Fuse"
boolean8.addObjects([body6])
doc.recompute()

boolean9 = body11.newObject("PartDesign::Boolean", "Boolean008")
boolean9.Type = "Fuse"
boolean9.addObjects([body8])
doc.recompute()

boolean10 = body11.newObject("PartDesign::Boolean", "Boolean009")
boolean10.Type = "Fuse"
boolean10.addObjects([body10])

sketch14 = body11.newObject("Sketcher::SketchObject", "Sketch013")
sketch14.AttachmentSupport = (doc.getObject("XY_Plane010"), [""])
sketch14.MapMode = "FlatFace"
sketch14.AttachmentOffset = App.Placement(V(0, 0, 10), App.Rotation())
sketch14.addGeometry(Part.Circle(V(0, 0, 0), V(0, 0, 1), 4.177329), False)
sketch14.addConstraint([
    Sketcher.Constraint("Coincident", 0, 3, -1, 1),
    Sketcher.Constraint("Diameter", 0, 8.354659),
])
pad14 = body11.newObject("PartDesign::Pad", "Pad013")
pad14.Profile = sketch14
pad14.Length = 2
doc.recompute()

fillet = body11.newObject("PartDesign::Fillet", "Fillet")
fillet.Base = (pad14, edges_at(pad14, [
    (-1.29, -3.973, 11),
    (1.292, -3.973, 11),
    (3.38, -2.455, 11),
    (4.177, 0.001, 11),
    (3.379, 2.456, 11),
    (-3.38, 2.455, 11),
    (-4.177, -0.001, 11),
    (-3.379, -2.456, 11),
]))
fillet.Radius = 0.5

sketch15 = body11.newObject("Sketcher::SketchObject", "Sketch014")
sketch15.AttachmentSupport = (doc.getObject("XY_Plane010"), [""])
sketch15.MapMode = "FlatFace"
sketch15.AttachmentOffset = App.Placement(V(0, 0, 10), App.Rotation())
sketch15.addGeometry(Part.Circle(V(0, 0, 0), V(0, 0, 1), 3), False)
sketch15.addConstraint([
    Sketcher.Constraint("Coincident", 0, 3, -1, 1),
    Sketcher.Constraint("Diameter", 0, 6.0),
])
pocket1 = body11.newObject("PartDesign::Pocket", "Pocket")
pocket1.Profile = sketch15
pocket1.Length = 20
pocket1.Reversed = True

doc.recompute()
